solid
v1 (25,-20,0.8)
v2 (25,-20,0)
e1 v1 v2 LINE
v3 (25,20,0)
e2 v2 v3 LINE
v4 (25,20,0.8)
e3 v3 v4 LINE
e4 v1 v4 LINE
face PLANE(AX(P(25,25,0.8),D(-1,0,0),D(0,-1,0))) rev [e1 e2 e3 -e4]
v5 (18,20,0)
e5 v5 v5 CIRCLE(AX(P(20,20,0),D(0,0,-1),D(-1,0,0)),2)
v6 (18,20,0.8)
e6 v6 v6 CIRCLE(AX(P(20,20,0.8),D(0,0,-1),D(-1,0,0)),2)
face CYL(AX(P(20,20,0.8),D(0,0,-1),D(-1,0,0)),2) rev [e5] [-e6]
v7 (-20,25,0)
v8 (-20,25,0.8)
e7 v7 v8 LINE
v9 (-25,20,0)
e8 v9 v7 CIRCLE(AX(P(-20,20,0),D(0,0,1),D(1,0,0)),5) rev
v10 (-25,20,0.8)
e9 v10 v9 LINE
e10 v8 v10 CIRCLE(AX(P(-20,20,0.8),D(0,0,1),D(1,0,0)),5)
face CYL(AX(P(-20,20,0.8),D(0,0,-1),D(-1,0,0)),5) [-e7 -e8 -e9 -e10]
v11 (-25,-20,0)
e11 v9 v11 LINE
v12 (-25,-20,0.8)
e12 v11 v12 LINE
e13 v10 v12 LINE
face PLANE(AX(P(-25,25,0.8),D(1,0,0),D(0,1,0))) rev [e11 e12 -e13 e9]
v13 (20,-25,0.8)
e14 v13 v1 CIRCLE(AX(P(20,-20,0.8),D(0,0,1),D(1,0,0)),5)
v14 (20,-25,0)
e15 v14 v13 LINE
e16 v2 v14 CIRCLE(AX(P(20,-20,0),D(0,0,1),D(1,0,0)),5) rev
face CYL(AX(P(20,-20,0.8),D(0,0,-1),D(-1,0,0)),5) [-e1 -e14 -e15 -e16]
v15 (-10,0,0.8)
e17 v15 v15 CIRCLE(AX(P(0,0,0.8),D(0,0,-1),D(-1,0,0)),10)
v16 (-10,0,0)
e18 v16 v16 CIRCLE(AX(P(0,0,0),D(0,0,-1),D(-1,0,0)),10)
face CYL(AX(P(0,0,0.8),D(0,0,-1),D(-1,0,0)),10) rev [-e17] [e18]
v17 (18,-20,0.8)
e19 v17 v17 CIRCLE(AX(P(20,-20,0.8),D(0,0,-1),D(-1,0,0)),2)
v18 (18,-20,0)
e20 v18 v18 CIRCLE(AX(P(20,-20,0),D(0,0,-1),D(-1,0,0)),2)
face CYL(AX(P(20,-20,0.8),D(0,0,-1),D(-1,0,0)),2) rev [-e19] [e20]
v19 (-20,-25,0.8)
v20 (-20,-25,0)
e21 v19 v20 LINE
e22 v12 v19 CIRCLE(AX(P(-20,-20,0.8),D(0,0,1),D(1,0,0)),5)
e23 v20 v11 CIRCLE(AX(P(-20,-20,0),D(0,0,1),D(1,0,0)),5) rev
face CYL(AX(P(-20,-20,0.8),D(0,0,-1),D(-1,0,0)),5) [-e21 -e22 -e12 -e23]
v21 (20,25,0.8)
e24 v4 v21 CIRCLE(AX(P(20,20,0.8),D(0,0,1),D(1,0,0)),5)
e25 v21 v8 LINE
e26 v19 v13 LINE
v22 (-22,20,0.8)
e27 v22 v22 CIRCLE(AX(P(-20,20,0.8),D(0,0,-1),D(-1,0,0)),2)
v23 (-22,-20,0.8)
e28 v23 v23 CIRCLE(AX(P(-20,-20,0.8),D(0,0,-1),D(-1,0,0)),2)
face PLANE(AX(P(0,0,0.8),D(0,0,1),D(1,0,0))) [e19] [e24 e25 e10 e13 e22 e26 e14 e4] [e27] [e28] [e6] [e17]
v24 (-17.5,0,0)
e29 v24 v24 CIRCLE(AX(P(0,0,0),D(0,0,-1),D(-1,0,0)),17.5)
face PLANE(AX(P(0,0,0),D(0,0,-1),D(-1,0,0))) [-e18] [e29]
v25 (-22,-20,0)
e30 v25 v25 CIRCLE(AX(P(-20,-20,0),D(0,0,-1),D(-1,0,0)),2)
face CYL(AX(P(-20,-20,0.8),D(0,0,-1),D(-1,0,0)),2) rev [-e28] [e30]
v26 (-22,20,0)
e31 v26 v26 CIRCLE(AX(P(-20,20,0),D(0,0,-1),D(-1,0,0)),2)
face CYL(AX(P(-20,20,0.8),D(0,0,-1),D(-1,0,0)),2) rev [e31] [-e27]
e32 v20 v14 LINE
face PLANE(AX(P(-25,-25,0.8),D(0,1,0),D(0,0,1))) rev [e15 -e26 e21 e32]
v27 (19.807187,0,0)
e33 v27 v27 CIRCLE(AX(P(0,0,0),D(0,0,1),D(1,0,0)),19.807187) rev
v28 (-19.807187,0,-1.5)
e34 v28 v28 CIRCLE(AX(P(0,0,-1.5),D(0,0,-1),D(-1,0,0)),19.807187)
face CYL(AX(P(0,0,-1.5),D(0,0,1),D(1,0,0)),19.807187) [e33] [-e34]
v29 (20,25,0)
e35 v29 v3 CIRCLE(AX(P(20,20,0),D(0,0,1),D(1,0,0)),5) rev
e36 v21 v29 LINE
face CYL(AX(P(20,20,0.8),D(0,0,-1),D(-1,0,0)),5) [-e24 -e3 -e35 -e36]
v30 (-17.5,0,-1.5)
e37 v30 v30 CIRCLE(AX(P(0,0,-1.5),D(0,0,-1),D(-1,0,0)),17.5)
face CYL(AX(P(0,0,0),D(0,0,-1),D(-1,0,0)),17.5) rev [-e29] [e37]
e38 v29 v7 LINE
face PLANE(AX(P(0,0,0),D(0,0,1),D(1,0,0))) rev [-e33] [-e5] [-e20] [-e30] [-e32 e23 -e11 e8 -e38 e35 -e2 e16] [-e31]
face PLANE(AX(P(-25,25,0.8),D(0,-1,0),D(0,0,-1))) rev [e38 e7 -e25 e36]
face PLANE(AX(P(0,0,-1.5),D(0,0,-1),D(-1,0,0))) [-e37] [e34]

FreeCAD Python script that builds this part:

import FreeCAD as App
import Part
import Sketcher

V = App.Vector


def edges_at(feature, points):
    """Names of the edges that pass closest to the given points."""
    edges = feature.Shape.Edges
    near = lambda p: min(range(len(edges)), key=lambda i: edges[i].distToShape(Part.Vertex(*p))[0])
    return sorted({f"Edge{near(p) + 1}" for p in points})


def add_polygon(sketch, points):
    """Adds a closed chain of lines whose ends are joined by coincident constraints."""
    first, n = sketch.GeometryCount, len(points)
    for a, b in zip(points, points[1:] + points[:1]):
        sketch.addGeometry(Part.LineSegment(App.Vector(*a, 0), App.Vector(*b, 0)), False)
    for i in range(n):
        sketch.addConstraint(Sketcher.Constraint("Coincident", first + i, 2, first + (i + 1) % n, 1))

doc = App.newDocument("Part")
body = doc.addObject("PartDesign::Body", "Body")

# Sketch on XY plane
sketch1 = body.newObject("Sketcher::SketchObject", "Sketch")
sketch1.AttachmentSupport = (doc.getObject("XY_Plane"), [""])
sketch1.MapMode = "FlatFace"
add_polygon(sketch1, [(-25, 25), (-25, -25), (25, -25), (25, 25)])  # lines 0-3
sketch1.addConstraint([
    Sketcher.Constraint("Vertical", 0),
    Sketcher.Constraint("Horizontal", 1),
    Sketcher.Constraint("Vertical", 2),
    Sketcher.Constraint("Horizontal", 3),
    Sketcher.Constraint("Symmetric", 0, 2, 2, 2, -1, 1),
    Sketcher.Constraint("Equal", 3, 0),
    Sketcher.Constraint("DistanceX", 1, 1, 1, 2, 50.0),
])
pad1 = body.newObject("PartDesign::Pad", "Pad")
pad1.Profile = sketch1
pad1.Length = 0.8
doc.recompute()

fillet = body.newObject("PartDesign::Fillet", "Fillet")
fillet.Base = (pad1, edges_at(pad1, [
    (25, -25, 0.4),
    (-25, -25, 0.4),
    (-25, 25, 0.4),
    (25, 25, 0.4),
]))
fillet.Radius = 5

# Sketch on XY plane
sketch2 = body.newObject("Sketcher::SketchObject", "Sketch001")
sketch2.AttachmentSupport = (doc.getObject("XY_Plane"), [""])
sketch2.MapMode = "FlatFace"
sketch2.addGeometry([
    Part.Circle(V(20, 20, 0), V(0, 0, 1), 2),
    Part.Circle(V(-20, 20, 0), V(0, 0, 1), 2),
    Part.Circle(V(-20, -20, 0), V(0, 0, 1), 2),
    Part.Circle(V(20, -20, 0), V(0, 0, 1), 2),
], False)
sketch2.addConstraint([
    Sketcher.Constraint("Equal", 0, 1),
    Sketcher.Constraint("Equal", 1, 2),
    Sketcher.Constraint("Equal", 2, 3),
    Sketcher.Constraint("Symmetric", 0, 3, 2, 3, -1, 1),
    Sketcher.Constraint("Symmetric", 1, 3, 3, 3, -1, 1),
    Sketcher.Constraint("Symmetric", 0, 3, 1, 3, -2),
    Sketcher.Constraint("Diameter", 0, 4.0),
    Sketcher.Constraint("DistanceX", -1, 1, 0, 3, 20.0),
    Sketcher.Constraint("DistanceY", -1, 1, 0, 3, 20.0),
])
pocket1 = body.newObject("PartDesign::Pocket", "Pocket")
pocket1.Profile = sketch2
pocket1.Type = "ThroughAll"
pocket1.Reversed = True

# Sketch on XY plane
sketch3 = body.newObject("Sketcher::SketchObject", "Sketch002")
sketch3.AttachmentSupport = (doc.getObject("XY_Plane"), [""])
sketch3.MapMode = "FlatFace"
sketch3.addGeometry(Part.Circle(V(0, 0, 0), V(0, 0, 1), 19.807187), False)
sketch3.addConstraint([
    Sketcher.Constraint("Coincident", 0, 3, -1, 1),
    Sketcher.Constraint("Diameter", 0, 39.614375),
])
pad2 = body.newObject("PartDesign::Pad", "Pad001")
pad2.Profile = sketch3
pad2.Length = 1.5
pad2.Reversed = True

# Sketch on XY plane
sketch4 = body.newObject("Sketcher::SketchObject", "Sketch003")
sketch4.AttachmentSupport = (doc.getObject("XY_Plane"), [""])
sketch4.MapMode = "FlatFace"
sketch4.AttachmentOffset = App.Placement(V(0, 0, -1.5), App.Rotation())
sketch4.addGeometry(Part.Circle(V(0, 0, 0), V(0, 0, 1), 17.5), False)
sketch4.addConstraint([
    Sketcher.Constraint("Coincident", 0, 3, -1, 1),
    Sketcher.Constraint("Diameter", 0, 35.0),
])
pocket2 = body.newObject("PartDesign::Pocket", "Pocket001")
pocket2.Profile = sketch4
pocket2.Length = 1.5
pocket2.Reversed = True

# Sketch on XY plane
sketch5 = body.newObject("Sketcher::SketchObject", "Sketch004")
sketch5.AttachmentSupport = (doc.getObject("XY_Plane"), [""])
sketch5.MapMode = "FlatFace"
sketch5.addGeometry(Part.Circle(V(0, 0, 0), V(0, 0, 1), 10), False)
sketch5.addConstraint([
    Sketcher.Constraint("Coincident", 0, 3, -1, 1),
    Sketcher.Constraint("Diameter", 0, 20.0),
])
pocket3 = body.newObject("PartDesign::Pocket", "Pocket002")
pocket3.Profile = sketch5
pocket3.Type = "ThroughAll"
pocket3.Reversed = True

doc.recompute()
